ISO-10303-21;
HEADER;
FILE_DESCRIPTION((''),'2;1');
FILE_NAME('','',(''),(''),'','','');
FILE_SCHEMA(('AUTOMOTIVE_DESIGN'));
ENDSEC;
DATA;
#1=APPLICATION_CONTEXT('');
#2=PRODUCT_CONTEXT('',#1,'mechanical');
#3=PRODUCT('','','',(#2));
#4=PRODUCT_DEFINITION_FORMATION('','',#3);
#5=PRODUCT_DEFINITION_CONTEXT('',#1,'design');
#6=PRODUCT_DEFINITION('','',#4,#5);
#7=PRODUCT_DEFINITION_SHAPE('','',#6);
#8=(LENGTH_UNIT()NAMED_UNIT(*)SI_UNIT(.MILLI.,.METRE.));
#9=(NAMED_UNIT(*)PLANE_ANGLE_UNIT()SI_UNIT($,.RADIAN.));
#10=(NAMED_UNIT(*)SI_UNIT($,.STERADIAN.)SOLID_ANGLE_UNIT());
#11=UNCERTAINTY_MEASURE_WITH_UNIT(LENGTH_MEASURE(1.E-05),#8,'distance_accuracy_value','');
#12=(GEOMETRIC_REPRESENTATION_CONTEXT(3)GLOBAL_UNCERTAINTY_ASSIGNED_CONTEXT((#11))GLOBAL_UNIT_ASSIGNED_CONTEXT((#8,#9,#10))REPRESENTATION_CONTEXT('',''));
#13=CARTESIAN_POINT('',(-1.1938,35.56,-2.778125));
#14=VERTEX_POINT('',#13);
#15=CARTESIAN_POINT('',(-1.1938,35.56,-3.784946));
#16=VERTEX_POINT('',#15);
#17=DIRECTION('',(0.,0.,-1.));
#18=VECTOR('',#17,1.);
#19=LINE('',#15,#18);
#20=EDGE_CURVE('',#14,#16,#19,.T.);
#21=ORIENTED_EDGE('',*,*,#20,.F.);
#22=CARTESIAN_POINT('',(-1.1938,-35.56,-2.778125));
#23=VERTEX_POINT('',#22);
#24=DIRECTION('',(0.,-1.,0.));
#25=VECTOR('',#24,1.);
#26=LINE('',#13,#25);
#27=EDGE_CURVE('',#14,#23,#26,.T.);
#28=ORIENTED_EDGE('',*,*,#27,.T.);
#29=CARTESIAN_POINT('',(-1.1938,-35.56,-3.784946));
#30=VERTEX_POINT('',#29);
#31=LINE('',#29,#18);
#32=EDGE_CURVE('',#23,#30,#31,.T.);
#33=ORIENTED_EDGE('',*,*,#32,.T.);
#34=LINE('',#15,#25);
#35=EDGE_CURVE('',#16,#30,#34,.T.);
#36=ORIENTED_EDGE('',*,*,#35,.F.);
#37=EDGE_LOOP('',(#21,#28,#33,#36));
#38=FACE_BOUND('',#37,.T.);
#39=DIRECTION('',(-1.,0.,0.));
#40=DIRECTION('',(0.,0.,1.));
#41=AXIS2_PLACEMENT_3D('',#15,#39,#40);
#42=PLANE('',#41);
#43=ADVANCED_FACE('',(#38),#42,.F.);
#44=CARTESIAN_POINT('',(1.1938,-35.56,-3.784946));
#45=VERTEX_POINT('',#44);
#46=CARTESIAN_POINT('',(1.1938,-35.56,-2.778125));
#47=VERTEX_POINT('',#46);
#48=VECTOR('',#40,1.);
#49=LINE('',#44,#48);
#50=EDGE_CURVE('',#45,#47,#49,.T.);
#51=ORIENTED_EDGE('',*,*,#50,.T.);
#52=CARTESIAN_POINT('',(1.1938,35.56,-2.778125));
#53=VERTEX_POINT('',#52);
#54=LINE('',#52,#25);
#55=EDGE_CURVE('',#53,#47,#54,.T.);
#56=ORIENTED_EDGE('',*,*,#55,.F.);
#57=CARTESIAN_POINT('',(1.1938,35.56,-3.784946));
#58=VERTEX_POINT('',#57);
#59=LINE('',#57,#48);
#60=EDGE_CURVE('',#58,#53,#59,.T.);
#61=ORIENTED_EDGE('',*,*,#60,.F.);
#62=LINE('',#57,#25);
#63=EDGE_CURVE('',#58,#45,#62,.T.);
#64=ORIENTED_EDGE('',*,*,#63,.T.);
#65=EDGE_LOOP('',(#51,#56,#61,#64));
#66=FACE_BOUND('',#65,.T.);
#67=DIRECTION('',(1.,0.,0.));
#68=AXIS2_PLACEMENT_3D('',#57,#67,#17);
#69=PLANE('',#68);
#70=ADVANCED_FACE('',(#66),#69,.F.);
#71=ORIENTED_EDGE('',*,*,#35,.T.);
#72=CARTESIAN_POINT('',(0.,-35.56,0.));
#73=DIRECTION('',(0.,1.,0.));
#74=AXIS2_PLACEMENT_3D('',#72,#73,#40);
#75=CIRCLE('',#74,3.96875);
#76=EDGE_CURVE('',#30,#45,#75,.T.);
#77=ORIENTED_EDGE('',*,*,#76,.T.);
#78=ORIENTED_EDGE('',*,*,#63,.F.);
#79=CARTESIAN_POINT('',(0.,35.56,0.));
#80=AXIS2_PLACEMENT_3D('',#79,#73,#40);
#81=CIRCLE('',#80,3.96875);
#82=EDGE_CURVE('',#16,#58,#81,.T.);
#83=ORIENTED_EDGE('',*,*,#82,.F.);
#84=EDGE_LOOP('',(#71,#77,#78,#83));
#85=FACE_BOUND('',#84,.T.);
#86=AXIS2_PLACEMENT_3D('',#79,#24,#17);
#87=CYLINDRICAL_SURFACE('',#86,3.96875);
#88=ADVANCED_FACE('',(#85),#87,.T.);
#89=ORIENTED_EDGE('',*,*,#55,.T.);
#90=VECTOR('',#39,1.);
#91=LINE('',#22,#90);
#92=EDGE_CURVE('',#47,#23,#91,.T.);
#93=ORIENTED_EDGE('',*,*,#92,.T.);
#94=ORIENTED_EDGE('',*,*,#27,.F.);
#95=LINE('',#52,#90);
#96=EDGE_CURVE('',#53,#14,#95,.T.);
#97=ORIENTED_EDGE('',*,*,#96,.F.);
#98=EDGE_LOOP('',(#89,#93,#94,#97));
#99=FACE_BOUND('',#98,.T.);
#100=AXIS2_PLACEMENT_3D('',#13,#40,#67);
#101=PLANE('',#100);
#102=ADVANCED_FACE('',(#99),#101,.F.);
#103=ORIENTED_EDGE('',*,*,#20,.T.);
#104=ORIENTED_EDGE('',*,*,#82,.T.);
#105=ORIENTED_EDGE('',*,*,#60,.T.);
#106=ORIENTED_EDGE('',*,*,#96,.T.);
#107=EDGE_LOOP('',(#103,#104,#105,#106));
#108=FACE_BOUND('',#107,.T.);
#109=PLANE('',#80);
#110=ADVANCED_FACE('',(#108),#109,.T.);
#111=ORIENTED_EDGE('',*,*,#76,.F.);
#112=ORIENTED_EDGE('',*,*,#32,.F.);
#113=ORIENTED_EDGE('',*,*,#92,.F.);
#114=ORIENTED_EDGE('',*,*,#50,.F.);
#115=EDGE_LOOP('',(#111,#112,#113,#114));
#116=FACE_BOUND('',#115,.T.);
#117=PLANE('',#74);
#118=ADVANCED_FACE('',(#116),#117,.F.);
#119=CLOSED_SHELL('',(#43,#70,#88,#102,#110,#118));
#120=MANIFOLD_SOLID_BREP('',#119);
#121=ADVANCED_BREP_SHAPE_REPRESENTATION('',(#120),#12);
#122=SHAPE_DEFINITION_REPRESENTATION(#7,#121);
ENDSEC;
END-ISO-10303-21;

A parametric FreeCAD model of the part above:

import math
import FreeCAD as App
import Part
import Sketcher
from FreeCAD import Vector
Q = App.Units.Quantity

doc = App.newDocument("Part")
body = doc.addObject("PartDesign::Body", "Body")

sketch1 = body.newObject("Sketcher::SketchObject", "Sketch")
sketch1.AttachmentSupport = (doc.getObject("XZ_Plane"), [""])
sketch1.MapMode = "FlatFace"
sketch1.addGeometry([
    Part.LineSegment(Vector(-1.1938, -2.778125, 0), Vector(-1.1938, -3.784946, 0)),
    Part.ArcOfCircle(Part.Circle(Vector(0, 0, 0), Vector(0, 0, 1), 3.96875), math.radians(-72.494341), math.radians(252.494341)),
    Part.LineSegment(Vector(1.1938, -3.784946, 0), Vector(1.1938, -2.778125, 0)),
    Part.LineSegment(Vector(1.1938, -2.778125, 0), Vector(-1.1938, -2.778125, 0)),
], False)
sketch1.addConstraint([
    Sketcher.Constraint("Coincident", 0, 2, 1, 2),
    Sketcher.Constraint("Coincident", 1, 1, 2, 1),
    Sketcher.Constraint("Coincident", 2, 2, 3, 1),
    Sketcher.Constraint("Coincident", 3, 2, 0, 1),
    Sketcher.Constraint("Vertical", 0),
    Sketcher.Constraint("Vertical", 2),
    Sketcher.Constraint("Horizontal", 3),
    Sketcher.Constraint("Coincident", 1, 3, -1, 1),
    Sketcher.Constraint("Horizontal", 0, 2, 1, 1),
    Sketcher.Constraint("Radius", 1, Q("0.15625 in")),
    Sketcher.Constraint("DistanceX", 3, 2, 3, 1, Q("0.094 in")),
    Sketcher.Constraint("DistanceY", 2, 2, -1, 1, Q("0.109375 in")),
])
pad1 = body.newObject("PartDesign::Pad", "Pad")
pad1.Profile = sketch1
pad1.Length = Q("2.8 in")
pad1.Midplane = True

doc.recompute()
